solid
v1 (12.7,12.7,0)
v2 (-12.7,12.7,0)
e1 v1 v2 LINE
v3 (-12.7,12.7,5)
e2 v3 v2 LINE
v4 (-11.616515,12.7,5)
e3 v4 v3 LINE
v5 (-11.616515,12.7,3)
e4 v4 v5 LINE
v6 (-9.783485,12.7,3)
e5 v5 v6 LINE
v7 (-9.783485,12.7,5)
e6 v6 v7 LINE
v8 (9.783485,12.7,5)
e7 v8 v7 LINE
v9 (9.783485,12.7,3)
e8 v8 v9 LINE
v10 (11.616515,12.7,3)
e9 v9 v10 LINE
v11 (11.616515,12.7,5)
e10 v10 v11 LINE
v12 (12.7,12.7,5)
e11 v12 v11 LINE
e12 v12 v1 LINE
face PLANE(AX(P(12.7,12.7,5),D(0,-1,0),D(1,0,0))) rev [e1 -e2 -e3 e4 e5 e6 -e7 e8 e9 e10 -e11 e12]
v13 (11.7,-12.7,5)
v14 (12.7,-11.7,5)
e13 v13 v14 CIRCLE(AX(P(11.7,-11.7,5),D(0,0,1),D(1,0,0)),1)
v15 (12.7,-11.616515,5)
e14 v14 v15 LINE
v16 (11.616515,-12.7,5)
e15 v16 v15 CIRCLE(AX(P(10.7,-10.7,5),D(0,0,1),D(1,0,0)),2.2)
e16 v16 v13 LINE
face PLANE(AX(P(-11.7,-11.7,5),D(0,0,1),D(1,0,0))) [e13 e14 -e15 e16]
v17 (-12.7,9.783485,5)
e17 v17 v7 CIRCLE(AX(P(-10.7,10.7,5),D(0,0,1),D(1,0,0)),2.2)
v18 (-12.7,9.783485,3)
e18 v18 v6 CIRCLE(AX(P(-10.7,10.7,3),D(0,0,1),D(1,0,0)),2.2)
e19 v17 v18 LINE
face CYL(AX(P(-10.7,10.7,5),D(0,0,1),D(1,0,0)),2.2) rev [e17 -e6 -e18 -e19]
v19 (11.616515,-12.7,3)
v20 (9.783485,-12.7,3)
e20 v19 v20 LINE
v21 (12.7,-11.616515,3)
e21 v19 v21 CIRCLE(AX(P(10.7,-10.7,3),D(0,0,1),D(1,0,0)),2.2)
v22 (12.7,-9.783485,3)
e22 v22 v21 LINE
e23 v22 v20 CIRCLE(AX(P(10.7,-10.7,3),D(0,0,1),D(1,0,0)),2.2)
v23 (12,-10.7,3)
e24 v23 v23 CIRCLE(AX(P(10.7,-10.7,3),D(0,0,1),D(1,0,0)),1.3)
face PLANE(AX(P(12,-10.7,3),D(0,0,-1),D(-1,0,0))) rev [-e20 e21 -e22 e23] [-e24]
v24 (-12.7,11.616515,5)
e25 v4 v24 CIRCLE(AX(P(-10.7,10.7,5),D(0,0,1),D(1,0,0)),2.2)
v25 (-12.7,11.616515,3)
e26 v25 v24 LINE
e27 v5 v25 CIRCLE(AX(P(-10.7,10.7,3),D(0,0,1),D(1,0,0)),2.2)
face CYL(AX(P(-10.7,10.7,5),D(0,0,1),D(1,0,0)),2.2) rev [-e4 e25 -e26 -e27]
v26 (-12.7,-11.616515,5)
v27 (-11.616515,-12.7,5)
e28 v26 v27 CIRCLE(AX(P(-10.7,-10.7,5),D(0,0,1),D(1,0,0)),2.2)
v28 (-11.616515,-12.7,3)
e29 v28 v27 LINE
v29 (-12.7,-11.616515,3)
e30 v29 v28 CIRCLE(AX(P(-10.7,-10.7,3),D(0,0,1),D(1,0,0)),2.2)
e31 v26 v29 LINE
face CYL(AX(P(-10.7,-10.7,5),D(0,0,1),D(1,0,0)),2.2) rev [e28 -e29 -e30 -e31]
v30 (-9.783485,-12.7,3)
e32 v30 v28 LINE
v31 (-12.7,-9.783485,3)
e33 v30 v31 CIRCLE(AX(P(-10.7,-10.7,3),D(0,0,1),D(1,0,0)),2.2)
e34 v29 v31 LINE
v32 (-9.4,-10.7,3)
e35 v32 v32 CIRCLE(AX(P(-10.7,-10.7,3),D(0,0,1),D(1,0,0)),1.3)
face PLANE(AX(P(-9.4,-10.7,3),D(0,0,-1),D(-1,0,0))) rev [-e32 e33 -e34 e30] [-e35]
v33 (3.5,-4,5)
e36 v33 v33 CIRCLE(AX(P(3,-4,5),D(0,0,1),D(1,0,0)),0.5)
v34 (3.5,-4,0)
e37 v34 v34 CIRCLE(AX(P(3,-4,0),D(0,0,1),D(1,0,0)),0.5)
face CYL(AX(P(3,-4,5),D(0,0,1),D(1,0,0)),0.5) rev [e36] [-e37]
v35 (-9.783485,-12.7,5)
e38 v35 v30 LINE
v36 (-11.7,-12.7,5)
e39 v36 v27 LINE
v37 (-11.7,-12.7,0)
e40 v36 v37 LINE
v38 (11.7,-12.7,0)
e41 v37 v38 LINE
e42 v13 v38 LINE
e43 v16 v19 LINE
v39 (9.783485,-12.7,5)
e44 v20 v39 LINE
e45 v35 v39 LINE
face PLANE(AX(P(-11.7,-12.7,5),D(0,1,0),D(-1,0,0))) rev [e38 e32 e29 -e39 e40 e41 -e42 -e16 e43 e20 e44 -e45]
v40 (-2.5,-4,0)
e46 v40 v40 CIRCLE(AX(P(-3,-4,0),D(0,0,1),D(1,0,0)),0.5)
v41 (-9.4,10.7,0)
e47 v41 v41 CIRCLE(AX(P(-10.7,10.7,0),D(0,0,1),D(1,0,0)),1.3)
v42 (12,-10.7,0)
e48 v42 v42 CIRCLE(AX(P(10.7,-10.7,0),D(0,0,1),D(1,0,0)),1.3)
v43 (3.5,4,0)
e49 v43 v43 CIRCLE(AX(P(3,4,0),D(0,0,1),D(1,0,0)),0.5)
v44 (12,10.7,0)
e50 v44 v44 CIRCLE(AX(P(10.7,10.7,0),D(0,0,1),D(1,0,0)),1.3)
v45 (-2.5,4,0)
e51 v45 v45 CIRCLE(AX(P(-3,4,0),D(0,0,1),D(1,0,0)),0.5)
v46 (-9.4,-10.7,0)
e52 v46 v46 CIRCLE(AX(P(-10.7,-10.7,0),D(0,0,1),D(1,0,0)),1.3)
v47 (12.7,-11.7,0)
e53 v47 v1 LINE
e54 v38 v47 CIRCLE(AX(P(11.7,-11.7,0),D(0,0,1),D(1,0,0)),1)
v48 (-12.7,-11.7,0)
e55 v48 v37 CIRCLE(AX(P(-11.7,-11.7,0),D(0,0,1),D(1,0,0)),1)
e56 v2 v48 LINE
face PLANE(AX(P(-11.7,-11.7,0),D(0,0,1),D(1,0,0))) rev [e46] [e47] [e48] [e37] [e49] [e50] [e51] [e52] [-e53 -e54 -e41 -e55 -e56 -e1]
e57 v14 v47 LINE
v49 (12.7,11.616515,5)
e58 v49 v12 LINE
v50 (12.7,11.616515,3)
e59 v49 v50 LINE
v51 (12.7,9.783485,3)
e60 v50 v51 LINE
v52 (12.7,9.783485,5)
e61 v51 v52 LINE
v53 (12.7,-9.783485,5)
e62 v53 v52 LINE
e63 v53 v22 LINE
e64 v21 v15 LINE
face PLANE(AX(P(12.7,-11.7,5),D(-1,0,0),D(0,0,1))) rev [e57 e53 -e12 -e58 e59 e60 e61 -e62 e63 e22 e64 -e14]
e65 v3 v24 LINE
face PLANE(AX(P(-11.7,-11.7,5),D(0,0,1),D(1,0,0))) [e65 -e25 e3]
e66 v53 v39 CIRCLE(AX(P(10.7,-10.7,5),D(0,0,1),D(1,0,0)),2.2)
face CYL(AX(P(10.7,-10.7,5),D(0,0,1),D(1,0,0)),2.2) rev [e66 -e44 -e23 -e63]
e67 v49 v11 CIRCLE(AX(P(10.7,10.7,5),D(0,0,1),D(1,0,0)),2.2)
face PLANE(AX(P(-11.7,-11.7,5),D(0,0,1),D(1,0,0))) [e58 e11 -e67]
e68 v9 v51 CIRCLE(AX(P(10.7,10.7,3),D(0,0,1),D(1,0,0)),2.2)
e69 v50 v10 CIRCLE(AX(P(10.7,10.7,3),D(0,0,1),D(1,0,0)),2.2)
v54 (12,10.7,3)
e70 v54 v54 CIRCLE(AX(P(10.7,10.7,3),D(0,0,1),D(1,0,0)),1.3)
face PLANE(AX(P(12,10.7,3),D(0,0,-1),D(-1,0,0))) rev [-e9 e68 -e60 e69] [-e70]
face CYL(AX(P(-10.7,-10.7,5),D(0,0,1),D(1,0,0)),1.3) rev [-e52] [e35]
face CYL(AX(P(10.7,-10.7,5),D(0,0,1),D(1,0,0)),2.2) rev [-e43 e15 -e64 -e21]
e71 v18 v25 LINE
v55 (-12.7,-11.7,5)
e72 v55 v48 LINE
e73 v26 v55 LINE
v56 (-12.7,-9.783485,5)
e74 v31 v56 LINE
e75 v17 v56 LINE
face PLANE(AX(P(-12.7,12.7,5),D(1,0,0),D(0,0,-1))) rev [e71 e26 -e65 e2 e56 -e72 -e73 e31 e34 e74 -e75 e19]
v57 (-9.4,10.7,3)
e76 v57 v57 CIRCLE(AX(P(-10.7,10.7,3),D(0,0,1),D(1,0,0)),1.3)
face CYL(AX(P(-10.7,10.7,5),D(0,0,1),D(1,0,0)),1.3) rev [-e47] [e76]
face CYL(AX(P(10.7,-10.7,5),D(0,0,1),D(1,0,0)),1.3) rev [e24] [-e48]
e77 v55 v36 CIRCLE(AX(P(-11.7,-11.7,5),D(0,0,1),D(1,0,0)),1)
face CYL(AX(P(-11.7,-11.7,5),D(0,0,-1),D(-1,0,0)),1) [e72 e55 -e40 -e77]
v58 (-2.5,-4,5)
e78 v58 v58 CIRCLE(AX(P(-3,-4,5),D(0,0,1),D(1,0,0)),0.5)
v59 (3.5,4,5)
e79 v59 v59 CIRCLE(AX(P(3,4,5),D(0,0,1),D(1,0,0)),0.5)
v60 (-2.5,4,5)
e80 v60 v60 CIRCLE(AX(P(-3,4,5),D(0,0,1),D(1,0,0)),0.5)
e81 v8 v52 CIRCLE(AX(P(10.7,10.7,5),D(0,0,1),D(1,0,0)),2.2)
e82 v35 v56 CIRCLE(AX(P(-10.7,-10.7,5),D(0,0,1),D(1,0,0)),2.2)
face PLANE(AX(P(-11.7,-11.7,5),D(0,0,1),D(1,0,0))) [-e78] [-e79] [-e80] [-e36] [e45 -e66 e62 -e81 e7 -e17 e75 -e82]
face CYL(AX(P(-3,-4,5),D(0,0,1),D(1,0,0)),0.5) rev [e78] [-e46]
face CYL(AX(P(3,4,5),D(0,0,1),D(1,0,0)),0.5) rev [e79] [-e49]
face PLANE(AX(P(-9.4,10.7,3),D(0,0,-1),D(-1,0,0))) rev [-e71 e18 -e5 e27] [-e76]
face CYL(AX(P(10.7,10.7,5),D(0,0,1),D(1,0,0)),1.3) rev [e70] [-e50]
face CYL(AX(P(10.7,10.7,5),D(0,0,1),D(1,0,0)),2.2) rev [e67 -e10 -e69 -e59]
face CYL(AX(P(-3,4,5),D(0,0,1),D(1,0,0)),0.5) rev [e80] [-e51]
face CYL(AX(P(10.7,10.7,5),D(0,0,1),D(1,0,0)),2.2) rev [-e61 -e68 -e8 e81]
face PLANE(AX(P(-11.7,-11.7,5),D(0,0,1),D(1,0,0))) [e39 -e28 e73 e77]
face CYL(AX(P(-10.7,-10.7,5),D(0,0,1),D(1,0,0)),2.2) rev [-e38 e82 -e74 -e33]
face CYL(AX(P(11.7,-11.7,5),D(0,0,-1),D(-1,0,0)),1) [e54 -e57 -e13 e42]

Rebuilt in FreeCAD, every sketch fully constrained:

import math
import FreeCAD as App
import Part
import Sketcher
from FreeCAD import Vector
Q = App.Units.Quantity

doc = App.newDocument("Part")
body = doc.addObject("PartDesign::Body", "Body")

sketch1 = body.newObject("Sketcher::SketchObject", "Sketch")
sketch1.AttachmentSupport = (doc.getObject("XY_Plane"), [""])
sketch1.MapMode = "FlatFace"
sketch1.addGeometry([
    Part.LineSegment(Vector(-12.7, 12.7, 0), Vector(-12.7, -11.7, 0)),
    Part.ArcOfCircle(Part.Circle(Vector(-11.7, -11.7, 0), Vector(0, 0, 1), 1), math.radians(-180), math.radians(-90)),
    Part.LineSegment(Vector(-11.7, -12.7, 0), Vector(11.7, -12.7, 0)),
    Part.ArcOfCircle(Part.Circle(Vector(11.7, -11.7, 0), Vector(0, 0, 1), 1), math.radians(-90), math.radians(0)),
    Part.LineSegment(Vector(12.7, -11.7, 0), Vector(12.7, 12.7, 0)),
    Part.LineSegment(Vector(12.7, 12.7, 0), Vector(-12.7, 12.7, 0)),
], False)
sketch1.addConstraint([
    Sketcher.Constraint("Tangent", 0, 2, 1, 1),
    Sketcher.Constraint("Tangent", 1, 2, 2, 1),
    Sketcher.Constraint("Tangent", 2, 2, 3, 1),
    Sketcher.Constraint("Tangent", 3, 2, 4, 1),
    Sketcher.Constraint("Coincident", 4, 2, 5, 1),
    Sketcher.Constraint("Coincident", 5, 2, 0, 1),
    Sketcher.Constraint("Vertical", 0),
    Sketcher.Constraint("Horizontal", 2),
    Sketcher.Constraint("Vertical", 4),
    Sketcher.Constraint("Horizontal", 5),
    Sketcher.Constraint("Equal", 1, 3),
    Sketcher.Constraint("Radius", 1, Q("1 mm")),
    Sketcher.Constraint("DistanceX", 2, 1, 2, 2, Q("23.4 mm")),
    Sketcher.Constraint("DistanceY", 0, 2, 0, 1, Q("24.4 mm")),
    Sketcher.Constraint("DistanceX", 1, 3, -1, 1, Q("11.7 mm")),
    Sketcher.Constraint("DistanceY", 1, 3, -1, 1, Q("11.7 mm")),
])
pad1 = body.newObject("PartDesign::Pad", "Pad")
pad1.Profile = sketch1
pad1.Length = 5

sketch2 = body.newObject("Sketcher::SketchObject", "Sketch001")
sketch2.AttachmentSupport = (doc.getObject("XY_Plane"), [""])
sketch2.MapMode = "FlatFace"
sketch2.AttachmentOffset = App.Placement(Vector(0, 0, 5), App.Rotation())
sketch2.addGeometry([
    Part.Circle(Vector(3, -4, 0), Vector(0, 0, 1), 0.5),
    Part.Circle(Vector(-3, -4, 0), Vector(0, 0, 1), 0.5),
    Part.Circle(Vector(-3, 4, 0), Vector(0, 0, 1), 0.5),
    Part.Circle(Vector(3, 4, 0), Vector(0, 0, 1), 0.5),
], False)
sketch2.addConstraint([
    Sketcher.Constraint("Equal", 0, 1),
    Sketcher.Constraint("Equal", 1, 2),
    Sketcher.Constraint("Equal", 2, 3),
    Sketcher.Constraint("Symmetric", 0, 3, 2, 3, -1, 1),
    Sketcher.Constraint("Symmetric", 1, 3, 3, 3, -1, 1),
    Sketcher.Constraint("Symmetric", 0, 3, 1, 3, -2),
    Sketcher.Constraint("Diameter", 0, Q("1 mm")),
    Sketcher.Constraint("DistanceX", -1, 1, 0, 3, Q("3 mm")),
    Sketcher.Constraint("DistanceY", 0, 3, -1, 1, Q("4 mm")),
])
doc.recompute()
hole = body.newObject("PartDesign::Hole", "Hole")
hole.Profile = sketch2
hole.ThreadType = "None"
hole.Diameter = 1
hole.DepthType = "ThroughAll"

sketch3 = body.newObject("Sketcher::SketchObject", "Sketch002")
sketch3.AttachmentSupport = (doc.getObject("XY_Plane"), [""])
sketch3.MapMode = "FlatFace"
sketch3.AttachmentOffset = App.Placement(Vector(0, 0, 5), App.Rotation())
sketch3.addGeometry([
    Part.Circle(Vector(10.7, -10.7, 0), Vector(0, 0, 1), 1.3),
    Part.Circle(Vector(-10.7, -10.7, 0), Vector(0, 0, 1), 1.3),
    Part.Circle(Vector(-10.7, 10.7, 0), Vector(0, 0, 1), 1.3),
    Part.Circle(Vector(10.7, 10.7, 0), Vector(0, 0, 1), 1.3),
], False)
sketch3.addConstraint([
    Sketcher.Constraint("Equal", 0, 1),
    Sketcher.Constraint("Equal", 1, 2),
    Sketcher.Constraint("Equal", 2, 3),
    Sketcher.Constraint("Symmetric", 0, 3, 2, 3, -1, 1),
    Sketcher.Constraint("Symmetric", 1, 3, 3, 3, -1, 1),
    Sketcher.Constraint("Symmetric", 0, 3, 1, 3, -2),
    Sketcher.Constraint("Diameter", 0, Q("2.6 mm")),
    Sketcher.Constraint("DistanceX", -1, 1, 0, 3, Q("10.7 mm")),
    Sketcher.Constraint("DistanceY", 0, 3, -1, 1, Q("10.7 mm")),
])
doc.recompute()
hole2 = body.newObject("PartDesign::Hole", "Hole001")
hole2.Profile = sketch3
hole2.ThreadType = "None"
hole2.Diameter = 2.6
hole2.DepthType = "ThroughAll"
hole2.HoleCutType = "Counterbore"
hole2.HoleCutDiameter = 4.4
hole2.HoleCutDepth = 2

doc.recompute()
